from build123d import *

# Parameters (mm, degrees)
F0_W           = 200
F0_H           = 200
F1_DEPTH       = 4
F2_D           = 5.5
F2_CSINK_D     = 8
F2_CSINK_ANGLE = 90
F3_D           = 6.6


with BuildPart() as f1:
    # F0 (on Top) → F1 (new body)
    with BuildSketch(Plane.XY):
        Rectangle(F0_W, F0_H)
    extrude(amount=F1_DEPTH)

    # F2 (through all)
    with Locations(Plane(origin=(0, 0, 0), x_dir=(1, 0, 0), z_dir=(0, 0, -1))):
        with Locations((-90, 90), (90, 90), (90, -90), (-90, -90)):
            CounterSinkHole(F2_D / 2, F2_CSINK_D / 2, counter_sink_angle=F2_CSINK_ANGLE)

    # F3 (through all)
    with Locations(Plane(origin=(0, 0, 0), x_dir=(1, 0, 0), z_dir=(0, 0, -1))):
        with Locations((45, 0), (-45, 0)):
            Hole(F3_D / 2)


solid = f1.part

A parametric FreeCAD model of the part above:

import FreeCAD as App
import Part
import Sketcher
from FreeCAD import Vector
Q = App.Units.Quantity


def add_polygon(sketch, points):
    """Adds a closed chain of lines whose ends are joined by coincident constraints."""
    first, n = sketch.GeometryCount, len(points)
    for a, b in zip(points, points[1:] + points[:1]):
        sketch.addGeometry(Part.LineSegment(App.Vector(*a, 0), App.Vector(*b, 0)), False)
    for i in range(n):
        sketch.addConstraint(Sketcher.Constraint("Coincident", first + i, 2, first + (i + 1) % n, 1))

doc = App.newDocument("Part")
body = doc.addObject("PartDesign::Body", "Body")

# Sketch on XY plane
sketch1 = body.newObject("Sketcher::SketchObject", "Sketch")
sketch1.AttachmentSupport = (doc.getObject("XY_Plane"), [""])
sketch1.MapMode = "FlatFace"
add_polygon(sketch1, [(-100, 100), (-100, -100), (100, -100), (100, 100)])  # lines 0-3
sketch1.addConstraint([
    Sketcher.Constraint("Vertical", 0),
    Sketcher.Constraint("Horizontal", 1),
    Sketcher.Constraint("Vertical", 2),
    Sketcher.Constraint("Horizontal", 3),
    Sketcher.Constraint("Symmetric", 0, 2, 2, 2, -1, 1),
    Sketcher.Constraint("Equal", 3, 0),
    Sketcher.Constraint("DistanceX", 1, 1, 1, 2, Q("200 mm")),
])
pad1 = body.newObject("PartDesign::Pad", "Pad")
pad1.Profile = sketch1
pad1.Length = 4

# Sketch on XY plane
sketch2 = body.newObject("Sketcher::SketchObject", "Sketch001")
sketch2.AttachmentSupport = (doc.getObject("XY_Plane"), [""])
sketch2.MapMode = "FlatFace"
sketch2.addGeometry([
    Part.Circle(Vector(-90, -90, 0), Vector(0, 0, 1), 2.75),
    Part.Circle(Vector(90, -90, 0), Vector(0, 0, 1), 2.75),
    Part.Circle(Vector(90, 90, 0), Vector(0, 0, 1), 2.75),
    Part.Circle(Vector(-90, 90, 0), Vector(0, 0, 1), 2.75),
], False)
sketch2.addConstraint([
    Sketcher.Constraint("Equal", 0, 1),
    Sketcher.Constraint("Equal", 1, 2),
    Sketcher.Constraint("Equal", 2, 3),
    Sketcher.Constraint("Symmetric", 0, 3, 2, 3, -1, 1),
    Sketcher.Constraint("Symmetric", 1, 3, 3, 3, -1, 1),
    Sketcher.Constraint("Symmetric", 0, 3, 1, 3, -2),
    Sketcher.Constraint("Diameter", 0, Q("5.5 mm")),
    Sketcher.Constraint("DistanceX", 0, 3, -1, 1, Q("90 mm")),
    Sketcher.Constraint("DistanceY", 0, 3, -1, 1, Q("90 mm")),
])
doc.recompute()
hole = body.newObject("PartDesign::Hole", "Hole")
hole.Profile = sketch2
hole.ThreadType = "None"
hole.Diameter = 5.5
hole.DepthType = "ThroughAll"
hole.HoleCutType = "Countersink"
hole.HoleCutDiameter = 8
hole.HoleCutCountersinkAngle = 90
hole.Reversed = True

# Sketch on XY plane
sketch3 = body.newObject("Sketcher::SketchObject", "Sketch002")
sketch3.AttachmentSupport = (doc.getObject("XY_Plane"), [""])
sketch3.MapMode = "FlatFace"
sketch3.addGeometry([
    Part.Circle(Vector(45, 0, 0), Vector(0, 0, 1), 3.3),
    Part.Circle(Vector(-45, 0, 0), Vector(0, 0, 1), 3.3),
], False)
sketch3.addConstraint([
    Sketcher.Constraint("Equal", 0, 1),
    Sketcher.Constraint("Symmetric", 0, 3, 1, 3, -1, 1),
    Sketcher.Constraint("PointOnObject", 0, 3, -1),
    Sketcher.Constraint("Diameter", 0, Q("6.6 mm")),
    Sketcher.Constraint("DistanceX", -1, 1, 0, 3, Q("45 mm")),
])
doc.recompute()
hole2 = body.newObject("PartDesign::Hole", "Hole001")
hole2.Profile = sketch3
hole2.ThreadType = "None"
hole2.Diameter = 6.6
hole2.DepthType = "ThroughAll"
hole2.Reversed = True

doc.recompute()
